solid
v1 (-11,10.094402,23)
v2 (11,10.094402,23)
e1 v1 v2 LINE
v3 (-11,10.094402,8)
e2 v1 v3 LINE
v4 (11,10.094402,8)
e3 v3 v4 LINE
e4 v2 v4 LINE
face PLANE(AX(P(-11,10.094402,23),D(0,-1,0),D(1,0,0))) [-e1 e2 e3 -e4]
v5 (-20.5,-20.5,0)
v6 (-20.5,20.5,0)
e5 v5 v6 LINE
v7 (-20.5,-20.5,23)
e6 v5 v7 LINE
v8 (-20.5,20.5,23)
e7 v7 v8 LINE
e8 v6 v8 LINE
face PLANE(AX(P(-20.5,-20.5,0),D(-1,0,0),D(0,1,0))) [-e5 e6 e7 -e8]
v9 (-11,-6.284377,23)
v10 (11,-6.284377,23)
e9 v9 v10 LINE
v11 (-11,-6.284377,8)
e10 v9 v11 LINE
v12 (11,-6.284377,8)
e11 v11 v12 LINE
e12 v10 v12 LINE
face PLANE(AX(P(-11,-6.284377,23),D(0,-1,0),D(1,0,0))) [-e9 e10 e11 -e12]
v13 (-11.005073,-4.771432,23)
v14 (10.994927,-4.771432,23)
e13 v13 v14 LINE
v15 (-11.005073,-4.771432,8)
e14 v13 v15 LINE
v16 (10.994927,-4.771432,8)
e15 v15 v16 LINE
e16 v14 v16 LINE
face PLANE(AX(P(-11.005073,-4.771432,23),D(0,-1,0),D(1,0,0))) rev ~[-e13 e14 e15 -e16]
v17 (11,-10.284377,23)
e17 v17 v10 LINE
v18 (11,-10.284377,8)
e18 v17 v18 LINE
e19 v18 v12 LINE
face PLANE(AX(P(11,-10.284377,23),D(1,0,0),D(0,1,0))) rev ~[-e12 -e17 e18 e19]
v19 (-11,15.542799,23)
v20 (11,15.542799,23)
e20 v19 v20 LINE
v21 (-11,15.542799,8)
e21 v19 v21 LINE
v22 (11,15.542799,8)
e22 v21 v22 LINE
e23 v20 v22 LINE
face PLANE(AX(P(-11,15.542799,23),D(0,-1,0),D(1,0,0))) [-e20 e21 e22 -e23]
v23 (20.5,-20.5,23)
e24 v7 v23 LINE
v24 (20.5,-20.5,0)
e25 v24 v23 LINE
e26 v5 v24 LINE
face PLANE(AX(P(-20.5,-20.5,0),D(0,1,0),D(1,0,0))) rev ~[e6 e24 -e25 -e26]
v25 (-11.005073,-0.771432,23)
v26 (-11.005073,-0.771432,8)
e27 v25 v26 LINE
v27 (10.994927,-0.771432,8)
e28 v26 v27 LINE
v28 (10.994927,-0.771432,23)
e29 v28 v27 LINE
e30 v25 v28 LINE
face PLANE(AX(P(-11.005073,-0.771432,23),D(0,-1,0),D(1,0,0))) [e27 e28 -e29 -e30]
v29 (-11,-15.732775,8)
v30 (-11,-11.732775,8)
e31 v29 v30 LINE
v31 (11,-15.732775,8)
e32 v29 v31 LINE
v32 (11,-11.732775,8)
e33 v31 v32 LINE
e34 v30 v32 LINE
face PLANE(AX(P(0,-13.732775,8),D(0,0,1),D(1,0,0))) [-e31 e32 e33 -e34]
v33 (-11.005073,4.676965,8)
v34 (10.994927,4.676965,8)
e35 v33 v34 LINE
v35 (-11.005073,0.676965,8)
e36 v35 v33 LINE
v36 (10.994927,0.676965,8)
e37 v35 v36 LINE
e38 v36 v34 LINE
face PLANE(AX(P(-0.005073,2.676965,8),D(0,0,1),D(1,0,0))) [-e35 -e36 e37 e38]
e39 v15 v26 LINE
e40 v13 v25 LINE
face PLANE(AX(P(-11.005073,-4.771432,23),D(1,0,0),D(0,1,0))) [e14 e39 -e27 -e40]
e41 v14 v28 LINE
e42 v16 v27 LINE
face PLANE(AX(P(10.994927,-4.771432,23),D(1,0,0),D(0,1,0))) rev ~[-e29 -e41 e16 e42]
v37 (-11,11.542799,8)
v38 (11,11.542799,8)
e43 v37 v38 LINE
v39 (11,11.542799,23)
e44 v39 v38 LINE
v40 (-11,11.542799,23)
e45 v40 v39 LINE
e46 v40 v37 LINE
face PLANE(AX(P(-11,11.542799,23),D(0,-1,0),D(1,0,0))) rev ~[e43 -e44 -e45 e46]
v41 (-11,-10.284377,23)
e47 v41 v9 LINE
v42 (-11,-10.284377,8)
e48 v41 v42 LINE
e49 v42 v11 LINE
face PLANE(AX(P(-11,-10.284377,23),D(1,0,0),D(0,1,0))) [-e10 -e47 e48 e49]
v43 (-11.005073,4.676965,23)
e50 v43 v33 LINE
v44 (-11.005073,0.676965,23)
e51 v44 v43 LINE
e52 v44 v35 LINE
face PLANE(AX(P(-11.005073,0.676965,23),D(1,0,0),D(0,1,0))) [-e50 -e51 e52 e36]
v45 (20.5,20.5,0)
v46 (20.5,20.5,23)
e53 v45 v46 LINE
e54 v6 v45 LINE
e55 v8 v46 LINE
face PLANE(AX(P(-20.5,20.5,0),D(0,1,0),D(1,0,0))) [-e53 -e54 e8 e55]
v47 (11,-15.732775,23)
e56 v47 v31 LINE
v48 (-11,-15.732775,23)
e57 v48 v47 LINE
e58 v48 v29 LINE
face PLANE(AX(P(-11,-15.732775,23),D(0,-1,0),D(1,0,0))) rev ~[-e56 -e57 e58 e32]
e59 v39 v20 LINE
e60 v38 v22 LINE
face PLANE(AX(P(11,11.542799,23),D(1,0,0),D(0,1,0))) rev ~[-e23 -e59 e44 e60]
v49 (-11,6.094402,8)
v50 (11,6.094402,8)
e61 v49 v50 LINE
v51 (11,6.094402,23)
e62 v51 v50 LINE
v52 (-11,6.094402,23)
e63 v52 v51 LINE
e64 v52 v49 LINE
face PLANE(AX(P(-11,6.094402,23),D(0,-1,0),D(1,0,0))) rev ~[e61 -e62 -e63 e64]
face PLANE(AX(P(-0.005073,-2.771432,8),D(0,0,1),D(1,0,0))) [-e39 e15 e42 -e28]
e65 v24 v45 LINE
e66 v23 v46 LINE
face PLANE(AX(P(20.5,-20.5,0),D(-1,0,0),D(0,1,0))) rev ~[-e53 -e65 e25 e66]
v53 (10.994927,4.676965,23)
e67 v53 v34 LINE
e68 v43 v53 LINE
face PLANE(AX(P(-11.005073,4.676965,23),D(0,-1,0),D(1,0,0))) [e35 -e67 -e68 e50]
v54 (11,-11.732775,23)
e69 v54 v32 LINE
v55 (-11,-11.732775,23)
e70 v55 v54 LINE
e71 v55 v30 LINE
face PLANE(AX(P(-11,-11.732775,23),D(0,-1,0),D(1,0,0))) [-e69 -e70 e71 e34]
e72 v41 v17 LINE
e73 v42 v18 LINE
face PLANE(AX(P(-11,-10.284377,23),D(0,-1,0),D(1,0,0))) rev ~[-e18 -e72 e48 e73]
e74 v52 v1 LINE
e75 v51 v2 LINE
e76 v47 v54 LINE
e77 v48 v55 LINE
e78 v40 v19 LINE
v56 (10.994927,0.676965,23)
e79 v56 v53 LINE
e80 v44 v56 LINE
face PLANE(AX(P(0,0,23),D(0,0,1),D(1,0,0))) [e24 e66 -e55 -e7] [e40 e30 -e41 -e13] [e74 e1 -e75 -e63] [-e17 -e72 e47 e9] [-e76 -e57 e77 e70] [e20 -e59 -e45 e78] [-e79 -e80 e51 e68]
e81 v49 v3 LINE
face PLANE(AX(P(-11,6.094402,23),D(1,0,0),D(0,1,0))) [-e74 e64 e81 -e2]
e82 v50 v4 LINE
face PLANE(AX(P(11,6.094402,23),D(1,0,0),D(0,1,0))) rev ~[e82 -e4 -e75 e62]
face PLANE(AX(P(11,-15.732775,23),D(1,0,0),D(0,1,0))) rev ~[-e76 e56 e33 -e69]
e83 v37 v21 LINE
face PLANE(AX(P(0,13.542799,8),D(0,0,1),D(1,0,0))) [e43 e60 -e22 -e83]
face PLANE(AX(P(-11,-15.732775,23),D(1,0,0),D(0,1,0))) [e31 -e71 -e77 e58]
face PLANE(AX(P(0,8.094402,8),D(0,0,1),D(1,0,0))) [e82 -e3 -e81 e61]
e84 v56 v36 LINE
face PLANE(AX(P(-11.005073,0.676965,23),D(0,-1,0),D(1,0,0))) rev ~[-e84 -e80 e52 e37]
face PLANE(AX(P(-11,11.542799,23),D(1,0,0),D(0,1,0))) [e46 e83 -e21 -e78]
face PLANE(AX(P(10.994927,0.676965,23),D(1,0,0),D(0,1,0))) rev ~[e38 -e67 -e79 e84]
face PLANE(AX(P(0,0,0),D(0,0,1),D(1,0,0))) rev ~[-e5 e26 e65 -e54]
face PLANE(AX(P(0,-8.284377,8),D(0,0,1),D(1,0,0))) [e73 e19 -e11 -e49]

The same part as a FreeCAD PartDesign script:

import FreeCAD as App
import Part
import Sketcher

V = App.Vector
Q = App.Units.Quantity


def add_polygon(sketch, points):
    """Adds a closed chain of lines whose ends are joined by coincident constraints."""
    first, n = sketch.GeometryCount, len(points)
    for a, b in zip(points, points[1:] + points[:1]):
        sketch.addGeometry(Part.LineSegment(App.Vector(*a, 0), App.Vector(*b, 0)), False)
    for i in range(n):
        sketch.addConstraint(Sketcher.Constraint("Coincident", first + i, 2, first + (i + 1) % n, 1))

doc = App.newDocument("Part")
body = doc.addObject("PartDesign::Body", "Body")

sketch1 = doc.addObject("Sketcher::SketchObject", "Sketch")
body.addObject(sketch1)
sketch1.AttachmentSupport = (doc.XY_Plane, [""])
sketch1.MapMode = "FlatFace"
add_polygon(sketch1, [(-20, 20), (-20, -20), (20, -20), (20, 20)])
sketch1.addConstraint(Sketcher.Constraint("Vertical", 0))
sketch1.addConstraint(Sketcher.Constraint("Horizontal", 1))
sketch1.addConstraint(Sketcher.Constraint("Vertical", 2))
sketch1.addConstraint(Sketcher.Constraint("Horizontal", 3))
sketch1.addConstraint(Sketcher.Constraint("Symmetric", 0, 2, 2, 2, -1, 1))
sketch1.addConstraint(Sketcher.Constraint("Equal", 3, 0))
sketch1.addConstraint(Sketcher.Constraint("DistanceX", 1, 1, 1, 2, Q("41 mm")))
pad1 = doc.addObject("PartDesign::Pad", "Pad")
body.addObject(pad1)
pad1.Profile = sketch1
pad1.Length = 23

sketch2 = doc.addObject("Sketcher::SketchObject", "Sketch001")
body.addObject(sketch2)
sketch2.AttachmentSupport = (doc.XY_Plane, [""])
sketch2.MapMode = "FlatFace"
sketch2.AttachmentOffset = App.Placement(V(0, 0, 23), App.Rotation())
add_polygon(sketch2, [(-11, 15.5), (-11, 11.5), (11, 11.5), (11, 15.5)])
add_polygon(sketch2, [(-11, 10.1), (-11, 6.1), (11, 6.1), (11, 10.1)])
add_polygon(sketch2, [(-11, 4.7), (-11, 0.7), (11, 0.7), (11, 4.7)])
add_polygon(sketch2, [(-11, -0.8), (-11, -4.8), (11, -4.8), (11, -0.8)])
add_polygon(sketch2, [(-11, -6.3), (-11, -10.3), (11, -10.3), (11, -6.3)])
add_polygon(sketch2, [(-11, -11.7), (-11, -15.7), (11, -15.7), (11, -11.7)])
sketch2.addConstraint(Sketcher.Constraint("Vertical", 0))
sketch2.addConstraint(Sketcher.Constraint("Horizontal", 1))
sketch2.addConstraint(Sketcher.Constraint("Vertical", 2))
sketch2.addConstraint(Sketcher.Constraint("Horizontal", 3))
sketch2.addConstraint(Sketcher.Constraint("Vertical", 4))
sketch2.addConstraint(Sketcher.Constraint("Horizontal", 5))
sketch2.addConstraint(Sketcher.Constraint("Vertical", 6))
sketch2.addConstraint(Sketcher.Constraint("Horizontal", 7))
sketch2.addConstraint(Sketcher.Constraint("Vertical", 8))
sketch2.addConstraint(Sketcher.Constraint("Horizontal", 9))
sketch2.addConstraint(Sketcher.Constraint("Vertical", 10))
sketch2.addConstraint(Sketcher.Constraint("Horizontal", 11))
sketch2.addConstraint(Sketcher.Constraint("Vertical", 12))
sketch2.addConstraint(Sketcher.Constraint("Horizontal", 13))
sketch2.addConstraint(Sketcher.Constraint("Vertical", 14))
sketch2.addConstraint(Sketcher.Constraint("Horizontal", 15))
sketch2.addConstraint(Sketcher.Constraint("Vertical", 16))
sketch2.addConstraint(Sketcher.Constraint("Horizontal", 17))
sketch2.addConstraint(Sketcher.Constraint("Vertical", 18))
sketch2.addConstraint(Sketcher.Constraint("Horizontal", 19))
sketch2.addConstraint(Sketcher.Constraint("Vertical", 20))
sketch2.addConstraint(Sketcher.Constraint("Horizontal", 21))
sketch2.addConstraint(Sketcher.Constraint("Vertical", 22))
sketch2.addConstraint(Sketcher.Constraint("Horizontal", 23))
sketch2.addConstraint(Sketcher.Constraint("Vertical", 3, 2, 4, 2))
sketch2.addConstraint(Sketcher.Constraint("Vertical", 2, 2, 5, 2))
sketch2.addConstraint(Sketcher.Constraint("Vertical", 11, 2, 12, 2))
sketch2.addConstraint(Sketcher.Constraint("Vertical", 10, 2, 13, 2))
sketch2.addConstraint(Sketcher.Constraint("Vertical", 7, 2, 16, 2))
sketch2.addConstraint(Sketcher.Constraint("Vertical", 6, 2, 17, 2))
sketch2.addConstraint(Sketcher.Constraint("Vertical", 19, 2, 20, 2))
sketch2.addConstraint(Sketcher.Constraint("Vertical", 18, 2, 21, 2))
sketch2.addConstraint(Sketcher.Constraint("Equal", 7, 9))
sketch2.addConstraint(Sketcher.Constraint("Equal", 2, 4))
sketch2.addConstraint(Sketcher.Constraint("Equal", 6, 8))
sketch2.addConstraint(Sketcher.Constraint("Equal", 10, 12))
sketch2.addConstraint(Sketcher.Constraint("Equal", 14, 16))
sketch2.addConstraint(Sketcher.Constraint("Equal", 18, 20))
sketch2.addConstraint(Sketcher.Constraint("DistanceX", 1, 1, 1, 2, Q("22 mm")))
sketch2.addConstraint(Sketcher.Constraint("DistanceY", 0, 2, 0, 1, Q("4 mm")))
sketch2.addConstraint(Sketcher.Constraint("DistanceX", 0, 2, -1, 1, Q("11 mm")))
sketch2.addConstraint(Sketcher.Constraint("DistanceY", -1, 1, 0, 2, Q("11.542799 mm")))
sketch2.addConstraint(Sketcher.Constraint("DistanceY", -1, 1, 4, 2, Q("6.094402 mm")))
sketch2.addConstraint(Sketcher.Constraint("DistanceY", 20, 2, 16, 2, Q("5.448398 mm")))
sketch2.addConstraint(Sketcher.Constraint("DistanceY", 12, 2, 0, 2, Q("16.314231 mm")))
sketch2.addConstraint(Sketcher.Constraint("DistanceY", 16, 2, 8, 2, Q("10.961342 mm")))
sketch2.addConstraint(Sketcher.Constraint("DistanceY", 16, 2, 4, 2, Q("16.378779 mm")))
sketch2.addConstraint(Sketcher.Constraint("DistanceX", 8, 2, -1, 1, Q("11.005073 mm")))
pocket1 = doc.addObject("PartDesign::Pocket", "Pocket")
body.addObject(pocket1)
pocket1.Profile = sketch2
pocket1.Length = 15

doc.recompute()
